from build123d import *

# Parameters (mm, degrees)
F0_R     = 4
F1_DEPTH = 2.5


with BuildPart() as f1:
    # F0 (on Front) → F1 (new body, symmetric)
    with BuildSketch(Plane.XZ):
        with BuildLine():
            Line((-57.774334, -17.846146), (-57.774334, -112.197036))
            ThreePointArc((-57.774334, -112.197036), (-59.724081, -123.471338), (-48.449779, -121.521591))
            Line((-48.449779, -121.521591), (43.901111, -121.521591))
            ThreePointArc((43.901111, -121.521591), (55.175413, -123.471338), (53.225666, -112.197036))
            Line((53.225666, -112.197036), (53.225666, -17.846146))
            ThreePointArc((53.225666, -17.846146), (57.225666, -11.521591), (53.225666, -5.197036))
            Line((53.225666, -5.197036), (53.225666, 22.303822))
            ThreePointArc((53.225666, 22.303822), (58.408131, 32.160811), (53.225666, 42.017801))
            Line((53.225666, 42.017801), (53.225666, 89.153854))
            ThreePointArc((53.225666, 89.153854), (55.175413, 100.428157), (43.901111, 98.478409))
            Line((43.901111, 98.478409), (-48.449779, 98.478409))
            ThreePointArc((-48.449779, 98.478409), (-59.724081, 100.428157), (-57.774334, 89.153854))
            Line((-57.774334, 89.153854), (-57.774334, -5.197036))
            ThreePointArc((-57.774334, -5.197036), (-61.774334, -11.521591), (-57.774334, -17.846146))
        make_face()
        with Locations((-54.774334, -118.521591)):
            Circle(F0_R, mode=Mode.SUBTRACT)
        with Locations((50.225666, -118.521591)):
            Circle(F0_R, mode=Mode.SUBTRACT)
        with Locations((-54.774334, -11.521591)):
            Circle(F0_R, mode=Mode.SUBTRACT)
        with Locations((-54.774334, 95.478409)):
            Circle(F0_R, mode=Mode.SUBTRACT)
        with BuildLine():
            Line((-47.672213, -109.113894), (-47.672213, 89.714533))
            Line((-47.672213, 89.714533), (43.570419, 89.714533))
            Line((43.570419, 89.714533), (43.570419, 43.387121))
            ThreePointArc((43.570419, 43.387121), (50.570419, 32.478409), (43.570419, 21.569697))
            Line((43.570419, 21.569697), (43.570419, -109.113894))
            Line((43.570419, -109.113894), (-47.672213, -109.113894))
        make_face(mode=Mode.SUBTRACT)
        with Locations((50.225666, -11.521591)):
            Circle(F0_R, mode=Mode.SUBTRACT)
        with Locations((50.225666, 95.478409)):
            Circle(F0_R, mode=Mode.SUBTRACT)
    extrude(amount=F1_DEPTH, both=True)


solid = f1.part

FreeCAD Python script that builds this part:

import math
import FreeCAD as App
import Part
import Sketcher

V = App.Vector
Q = App.Units.Quantity

doc = App.newDocument("Part")
body = doc.addObject("PartDesign::Body", "Body")

# Sketch on XZ plane
sketch1 = body.newObject("Sketcher::SketchObject", "Sketch")
sketch1.AttachmentSupport = (doc.getObject("XZ_Plane"), [""])
sketch1.MapMode = "FlatFace"
sketch1.addGeometry(Part.LineSegment(V(-57.8, -17.8, 0), V(-57.8, -112.2, 0)), False)
sketch1.addGeometry(Part.ArcOfCircle(Part.Circle(V(-54.8, -118.5, 0), V(0, 0, 1), 7), math.radians(115), math.radians(335)), False)
sketch1.addGeometry(Part.LineSegment(V(-48.4, -121.5, 0), V(43.9, -121.5, 0)), False)
sketch1.addGeometry(Part.ArcOfCircle(Part.Circle(V(50.2, -118.5, 0), V(0, 0, 1), 7), math.radians(-155), math.radians(65)), False)
sketch1.addGeometry(Part.LineSegment(V(53.2, -112.2, 0), V(53.2, -17.8, 0)), False)
sketch1.addGeometry(Part.ArcOfCircle(Part.Circle(V(50.2, -11.5, 0), V(0, 0, 1), 7), math.radians(-65), math.radians(65)), False)
sketch1.addGeometry(Part.LineSegment(V(53.2, -5.2, 0), V(53.2, 22.3, 0)), False)
sketch1.addGeometry(Part.ArcOfCircle(Part.Circle(V(46.4, 32.2, 0), V(0, 0, 1), 12), math.radians(-55), math.radians(55)), False)
sketch1.addGeometry(Part.LineSegment(V(53.2, 42, 0), V(53.2, 89.2, 0)), False)
sketch1.addGeometry(Part.ArcOfCircle(Part.Circle(V(50.2, 95.5, 0), V(0, 0, 1), 7), math.radians(-65), math.radians(155)), False)
sketch1.addGeometry(Part.LineSegment(V(43.9, 98.5, 0), V(-48.4, 98.5, 0)), False)
sketch1.addGeometry(Part.ArcOfCircle(Part.Circle(V(-54.8, 95.5, 0), V(0, 0, 1), 7), math.radians(25), math.radians(245)), False)
sketch1.addGeometry(Part.LineSegment(V(-57.8, 89.2, 0), V(-57.8, -5.2, 0)), False)
sketch1.addGeometry(Part.ArcOfCircle(Part.Circle(V(-54.8, -11.5, 0), V(0, 0, 1), 7), math.radians(115), math.radians(245)), False)
sketch1.addGeometry(Part.Circle(V(-54.8, -118.5, 0), V(0, 0, 1), 4), False)
sketch1.addGeometry(Part.Circle(V(50.2, -118.5, 0), V(0, 0, 1), 4), False)
sketch1.addGeometry(Part.Circle(V(-54.8, -11.5, 0), V(0, 0, 1), 4), False)
sketch1.addGeometry(Part.Circle(V(-54.8, 95.5, 0), V(0, 0, 1), 4), False)
sketch1.addGeometry(Part.LineSegment(V(43.6, -109.1, 0), V(-47.7, -109.1, 0)), False)
sketch1.addGeometry(Part.LineSegment(V(-47.7, -109.1, 0), V(-47.7, 89.7, 0)), False)
sketch1.addGeometry(Part.LineSegment(V(-47.7, 89.7, 0), V(43.6, 89.7, 0)), False)
sketch1.addGeometry(Part.LineSegment(V(43.6, 89.7, 0), V(43.6, 43.4, 0)), False)
sketch1.addGeometry(Part.ArcOfCircle(Part.Circle(V(38.6, 32.5, 0), V(0, 0, 1), 12), math.radians(-65), math.radians(65)), False)
sketch1.addGeometry(Part.LineSegment(V(43.6, 21.6, 0), V(43.6, -109.1, 0)), False)
sketch1.addGeometry(Part.Circle(V(50.2, -11.5, 0), V(0, 0, 1), 4), False)
sketch1.addGeometry(Part.Circle(V(50.2, 95.5, 0), V(0, 0, 1), 4), False)
sketch1.addConstraint(Sketcher.Constraint("Coincident", 0, 2, 1, 1))
sketch1.addConstraint(Sketcher.Constraint("Coincident", 1, 2, 2, 1))
sketch1.addConstraint(Sketcher.Constraint("Coincident", 2, 2, 3, 1))
sketch1.addConstraint(Sketcher.Constraint("Coincident", 3, 2, 4, 1))
sketch1.addConstraint(Sketcher.Constraint("Coincident", 4, 2, 5, 1))
sketch1.addConstraint(Sketcher.Constraint("Coincident", 5, 2, 6, 1))
sketch1.addConstraint(Sketcher.Constraint("Coincident", 6, 2, 7, 1))
sketch1.addConstraint(Sketcher.Constraint("Coincident", 7, 2, 8, 1))
sketch1.addConstraint(Sketcher.Constraint("Coincident", 8, 2, 9, 1))
sketch1.addConstraint(Sketcher.Constraint("Coincident", 9, 2, 10, 1))
sketch1.addConstraint(Sketcher.Constraint("Coincident", 10, 2, 11, 1))
sketch1.addConstraint(Sketcher.Constraint("Coincident", 11, 2, 12, 1))
sketch1.addConstraint(Sketcher.Constraint("Coincident", 12, 2, 13, 1))
sketch1.addConstraint(Sketcher.Constraint("Coincident", 13, 2, 0, 1))
sketch1.addConstraint(Sketcher.Constraint("Coincident", 18, 2, 19, 1))
sketch1.addConstraint(Sketcher.Constraint("Coincident", 19, 2, 20, 1))
sketch1.addConstraint(Sketcher.Constraint("Coincident", 20, 2, 21, 1))
sketch1.addConstraint(Sketcher.Constraint("Coincident", 21, 2, 22, 2))
sketch1.addConstraint(Sketcher.Constraint("Coincident", 22, 1, 23, 1))
sketch1.addConstraint(Sketcher.Constraint("Coincident", 23, 2, 18, 1))
sketch1.addConstraint(Sketcher.Constraint("Vertical", 0))
sketch1.addConstraint(Sketcher.Constraint("Horizontal", 2))
sketch1.addConstraint(Sketcher.Constraint("Vertical", 4))
sketch1.addConstraint(Sketcher.Constraint("Vertical", 6))
sketch1.addConstraint(Sketcher.Constraint("Vertical", 8))
sketch1.addConstraint(Sketcher.Constraint("Horizontal", 10))
sketch1.addConstraint(Sketcher.Constraint("Vertical", 12))
sketch1.addConstraint(Sketcher.Constraint("Horizontal", 18))
sketch1.addConstraint(Sketcher.Constraint("Vertical", 19))
sketch1.addConstraint(Sketcher.Constraint("Horizontal", 20))
sketch1.addConstraint(Sketcher.Constraint("Vertical", 21))
sketch1.addConstraint(Sketcher.Constraint("Vertical", 23))
sketch1.addConstraint(Sketcher.Constraint("Coincident", 14, 3, 1, 3))
sketch1.addConstraint(Sketcher.Constraint("Coincident", 15, 3, 3, 3))
sketch1.addConstraint(Sketcher.Constraint("Coincident", 16, 3, 13, 3))
sketch1.addConstraint(Sketcher.Constraint("Coincident", 17, 3, 11, 3))
sketch1.addConstraint(Sketcher.Constraint("Coincident", 24, 3, 5, 3))
sketch1.addConstraint(Sketcher.Constraint("Coincident", 25, 3, 9, 3))
sketch1.addConstraint(Sketcher.Constraint("Equal", 1, 3))
sketch1.addConstraint(Sketcher.Constraint("Equal", 3, 5))
sketch1.addConstraint(Sketcher.Constraint("Equal", 5, 9))
sketch1.addConstraint(Sketcher.Constraint("Equal", 9, 11))
sketch1.addConstraint(Sketcher.Constraint("Equal", 11, 13))
sketch1.addConstraint(Sketcher.Constraint("Equal", 14, 15))
sketch1.addConstraint(Sketcher.Constraint("Equal", 15, 16))
sketch1.addConstraint(Sketcher.Constraint("Equal", 16, 17))
sketch1.addConstraint(Sketcher.Constraint("Equal", 17, 24))
sketch1.addConstraint(Sketcher.Constraint("Equal", 24, 25))
sketch1.addConstraint(Sketcher.Constraint("Horizontal", 1, 3, 3, 3))
sketch1.addConstraint(Sketcher.Constraint("Horizontal", 9, 3, 11, 3))
sketch1.addConstraint(Sketcher.Constraint("Horizontal", 5, 3, 13, 3))
sketch1.addConstraint(Sketcher.Constraint("Horizontal", 0, 2, 3, 2))
sketch1.addConstraint(Sketcher.Constraint("Horizontal", 8, 2, 11, 2))
sketch1.addConstraint(Sketcher.Constraint("Horizontal", 5, 2, 12, 2))
sketch1.addConstraint(Sketcher.Constraint("Horizontal", 4, 2, 13, 2))
sketch1.addConstraint(Sketcher.Constraint("Vertical", 3, 3, 5, 3))
sketch1.addConstraint(Sketcher.Constraint("Vertical", 5, 3, 9, 3))
sketch1.addConstraint(Sketcher.Constraint("Vertical", 1, 3, 11, 3))
sketch1.addConstraint(Sketcher.Constraint("Vertical", 4, 2, 5, 2))
sketch1.addConstraint(Sketcher.Constraint("Vertical", 2, 2, 9, 2))
sketch1.addConstraint(Sketcher.Constraint("Vertical", 21, 2, 22, 1))
sketch1.addConstraint(Sketcher.Constraint("Equal", 4, 12))
sketch1.addConstraint(Sketcher.Constraint("Diameter", 14, Q("8 mm")))
sketch1.addConstraint(Sketcher.Constraint("Radius", 1, Q("7 mm")))
sketch1.addConstraint(Sketcher.Constraint("Radius", 22, Q("12 mm")))
sketch1.addConstraint(Sketcher.Constraint("DistanceX", 1, 3, 3, 3, Q("105 mm")))
sketch1.addConstraint(Sketcher.Constraint("DistanceY", 3, 3, 5, 3, Q("107 mm")))
sketch1.addConstraint(Sketcher.Constraint("DistanceY", 5, 3, 22, 3, Q("44 mm")))
sketch1.addConstraint(Sketcher.Constraint("DistanceX", 0, 2, 1, 3, Q("3 mm")))
sketch1.addConstraint(Sketcher.Constraint("DistanceY", 1, 2, 1, 3, Q("3 mm")))
sketch1.addConstraint(Sketcher.Constraint("DistanceX", 22, 3, 21, 2, Q("5 mm")))
sketch1.addConstraint(Sketcher.Constraint("Radius", 7, Q("11.965173 mm")))
sketch1.addConstraint(Sketcher.Constraint("DistanceX", 18, 2, 18, 1, Q("91.242632 mm")))
sketch1.addConstraint(Sketcher.Constraint("DistanceY", 6, 1, 6, 2, Q("27.500858 mm")))
sketch1.addConstraint(Sketcher.Constraint("DistanceY", 23, 2, 23, 1, Q("130.683591 mm")))
sketch1.addConstraint(Sketcher.Constraint("DistanceY", -1, 1, 7, 2, Q("42.017801 mm")))
sketch1.addConstraint(Sketcher.Constraint("DistanceY", 8, 1, 8, 2, Q("47.136053 mm")))
sketch1.addConstraint(Sketcher.Constraint("DistanceY", 19, 1, 19, 2, Q("198.828427 mm")))
sketch1.addConstraint(Sketcher.Constraint("DistanceX", -1, 1, 22, 3, Q("38.570419 mm")))
sketch1.addConstraint(Sketcher.Constraint("DistanceX", 1, 2, -1, 1, Q("48.449779 mm")))
pad1 = body.newObject("PartDesign::Pad", "Pad")
pad1.Profile = sketch1
pad1.Length = 5
pad1.Midplane = True

doc.recompute()
